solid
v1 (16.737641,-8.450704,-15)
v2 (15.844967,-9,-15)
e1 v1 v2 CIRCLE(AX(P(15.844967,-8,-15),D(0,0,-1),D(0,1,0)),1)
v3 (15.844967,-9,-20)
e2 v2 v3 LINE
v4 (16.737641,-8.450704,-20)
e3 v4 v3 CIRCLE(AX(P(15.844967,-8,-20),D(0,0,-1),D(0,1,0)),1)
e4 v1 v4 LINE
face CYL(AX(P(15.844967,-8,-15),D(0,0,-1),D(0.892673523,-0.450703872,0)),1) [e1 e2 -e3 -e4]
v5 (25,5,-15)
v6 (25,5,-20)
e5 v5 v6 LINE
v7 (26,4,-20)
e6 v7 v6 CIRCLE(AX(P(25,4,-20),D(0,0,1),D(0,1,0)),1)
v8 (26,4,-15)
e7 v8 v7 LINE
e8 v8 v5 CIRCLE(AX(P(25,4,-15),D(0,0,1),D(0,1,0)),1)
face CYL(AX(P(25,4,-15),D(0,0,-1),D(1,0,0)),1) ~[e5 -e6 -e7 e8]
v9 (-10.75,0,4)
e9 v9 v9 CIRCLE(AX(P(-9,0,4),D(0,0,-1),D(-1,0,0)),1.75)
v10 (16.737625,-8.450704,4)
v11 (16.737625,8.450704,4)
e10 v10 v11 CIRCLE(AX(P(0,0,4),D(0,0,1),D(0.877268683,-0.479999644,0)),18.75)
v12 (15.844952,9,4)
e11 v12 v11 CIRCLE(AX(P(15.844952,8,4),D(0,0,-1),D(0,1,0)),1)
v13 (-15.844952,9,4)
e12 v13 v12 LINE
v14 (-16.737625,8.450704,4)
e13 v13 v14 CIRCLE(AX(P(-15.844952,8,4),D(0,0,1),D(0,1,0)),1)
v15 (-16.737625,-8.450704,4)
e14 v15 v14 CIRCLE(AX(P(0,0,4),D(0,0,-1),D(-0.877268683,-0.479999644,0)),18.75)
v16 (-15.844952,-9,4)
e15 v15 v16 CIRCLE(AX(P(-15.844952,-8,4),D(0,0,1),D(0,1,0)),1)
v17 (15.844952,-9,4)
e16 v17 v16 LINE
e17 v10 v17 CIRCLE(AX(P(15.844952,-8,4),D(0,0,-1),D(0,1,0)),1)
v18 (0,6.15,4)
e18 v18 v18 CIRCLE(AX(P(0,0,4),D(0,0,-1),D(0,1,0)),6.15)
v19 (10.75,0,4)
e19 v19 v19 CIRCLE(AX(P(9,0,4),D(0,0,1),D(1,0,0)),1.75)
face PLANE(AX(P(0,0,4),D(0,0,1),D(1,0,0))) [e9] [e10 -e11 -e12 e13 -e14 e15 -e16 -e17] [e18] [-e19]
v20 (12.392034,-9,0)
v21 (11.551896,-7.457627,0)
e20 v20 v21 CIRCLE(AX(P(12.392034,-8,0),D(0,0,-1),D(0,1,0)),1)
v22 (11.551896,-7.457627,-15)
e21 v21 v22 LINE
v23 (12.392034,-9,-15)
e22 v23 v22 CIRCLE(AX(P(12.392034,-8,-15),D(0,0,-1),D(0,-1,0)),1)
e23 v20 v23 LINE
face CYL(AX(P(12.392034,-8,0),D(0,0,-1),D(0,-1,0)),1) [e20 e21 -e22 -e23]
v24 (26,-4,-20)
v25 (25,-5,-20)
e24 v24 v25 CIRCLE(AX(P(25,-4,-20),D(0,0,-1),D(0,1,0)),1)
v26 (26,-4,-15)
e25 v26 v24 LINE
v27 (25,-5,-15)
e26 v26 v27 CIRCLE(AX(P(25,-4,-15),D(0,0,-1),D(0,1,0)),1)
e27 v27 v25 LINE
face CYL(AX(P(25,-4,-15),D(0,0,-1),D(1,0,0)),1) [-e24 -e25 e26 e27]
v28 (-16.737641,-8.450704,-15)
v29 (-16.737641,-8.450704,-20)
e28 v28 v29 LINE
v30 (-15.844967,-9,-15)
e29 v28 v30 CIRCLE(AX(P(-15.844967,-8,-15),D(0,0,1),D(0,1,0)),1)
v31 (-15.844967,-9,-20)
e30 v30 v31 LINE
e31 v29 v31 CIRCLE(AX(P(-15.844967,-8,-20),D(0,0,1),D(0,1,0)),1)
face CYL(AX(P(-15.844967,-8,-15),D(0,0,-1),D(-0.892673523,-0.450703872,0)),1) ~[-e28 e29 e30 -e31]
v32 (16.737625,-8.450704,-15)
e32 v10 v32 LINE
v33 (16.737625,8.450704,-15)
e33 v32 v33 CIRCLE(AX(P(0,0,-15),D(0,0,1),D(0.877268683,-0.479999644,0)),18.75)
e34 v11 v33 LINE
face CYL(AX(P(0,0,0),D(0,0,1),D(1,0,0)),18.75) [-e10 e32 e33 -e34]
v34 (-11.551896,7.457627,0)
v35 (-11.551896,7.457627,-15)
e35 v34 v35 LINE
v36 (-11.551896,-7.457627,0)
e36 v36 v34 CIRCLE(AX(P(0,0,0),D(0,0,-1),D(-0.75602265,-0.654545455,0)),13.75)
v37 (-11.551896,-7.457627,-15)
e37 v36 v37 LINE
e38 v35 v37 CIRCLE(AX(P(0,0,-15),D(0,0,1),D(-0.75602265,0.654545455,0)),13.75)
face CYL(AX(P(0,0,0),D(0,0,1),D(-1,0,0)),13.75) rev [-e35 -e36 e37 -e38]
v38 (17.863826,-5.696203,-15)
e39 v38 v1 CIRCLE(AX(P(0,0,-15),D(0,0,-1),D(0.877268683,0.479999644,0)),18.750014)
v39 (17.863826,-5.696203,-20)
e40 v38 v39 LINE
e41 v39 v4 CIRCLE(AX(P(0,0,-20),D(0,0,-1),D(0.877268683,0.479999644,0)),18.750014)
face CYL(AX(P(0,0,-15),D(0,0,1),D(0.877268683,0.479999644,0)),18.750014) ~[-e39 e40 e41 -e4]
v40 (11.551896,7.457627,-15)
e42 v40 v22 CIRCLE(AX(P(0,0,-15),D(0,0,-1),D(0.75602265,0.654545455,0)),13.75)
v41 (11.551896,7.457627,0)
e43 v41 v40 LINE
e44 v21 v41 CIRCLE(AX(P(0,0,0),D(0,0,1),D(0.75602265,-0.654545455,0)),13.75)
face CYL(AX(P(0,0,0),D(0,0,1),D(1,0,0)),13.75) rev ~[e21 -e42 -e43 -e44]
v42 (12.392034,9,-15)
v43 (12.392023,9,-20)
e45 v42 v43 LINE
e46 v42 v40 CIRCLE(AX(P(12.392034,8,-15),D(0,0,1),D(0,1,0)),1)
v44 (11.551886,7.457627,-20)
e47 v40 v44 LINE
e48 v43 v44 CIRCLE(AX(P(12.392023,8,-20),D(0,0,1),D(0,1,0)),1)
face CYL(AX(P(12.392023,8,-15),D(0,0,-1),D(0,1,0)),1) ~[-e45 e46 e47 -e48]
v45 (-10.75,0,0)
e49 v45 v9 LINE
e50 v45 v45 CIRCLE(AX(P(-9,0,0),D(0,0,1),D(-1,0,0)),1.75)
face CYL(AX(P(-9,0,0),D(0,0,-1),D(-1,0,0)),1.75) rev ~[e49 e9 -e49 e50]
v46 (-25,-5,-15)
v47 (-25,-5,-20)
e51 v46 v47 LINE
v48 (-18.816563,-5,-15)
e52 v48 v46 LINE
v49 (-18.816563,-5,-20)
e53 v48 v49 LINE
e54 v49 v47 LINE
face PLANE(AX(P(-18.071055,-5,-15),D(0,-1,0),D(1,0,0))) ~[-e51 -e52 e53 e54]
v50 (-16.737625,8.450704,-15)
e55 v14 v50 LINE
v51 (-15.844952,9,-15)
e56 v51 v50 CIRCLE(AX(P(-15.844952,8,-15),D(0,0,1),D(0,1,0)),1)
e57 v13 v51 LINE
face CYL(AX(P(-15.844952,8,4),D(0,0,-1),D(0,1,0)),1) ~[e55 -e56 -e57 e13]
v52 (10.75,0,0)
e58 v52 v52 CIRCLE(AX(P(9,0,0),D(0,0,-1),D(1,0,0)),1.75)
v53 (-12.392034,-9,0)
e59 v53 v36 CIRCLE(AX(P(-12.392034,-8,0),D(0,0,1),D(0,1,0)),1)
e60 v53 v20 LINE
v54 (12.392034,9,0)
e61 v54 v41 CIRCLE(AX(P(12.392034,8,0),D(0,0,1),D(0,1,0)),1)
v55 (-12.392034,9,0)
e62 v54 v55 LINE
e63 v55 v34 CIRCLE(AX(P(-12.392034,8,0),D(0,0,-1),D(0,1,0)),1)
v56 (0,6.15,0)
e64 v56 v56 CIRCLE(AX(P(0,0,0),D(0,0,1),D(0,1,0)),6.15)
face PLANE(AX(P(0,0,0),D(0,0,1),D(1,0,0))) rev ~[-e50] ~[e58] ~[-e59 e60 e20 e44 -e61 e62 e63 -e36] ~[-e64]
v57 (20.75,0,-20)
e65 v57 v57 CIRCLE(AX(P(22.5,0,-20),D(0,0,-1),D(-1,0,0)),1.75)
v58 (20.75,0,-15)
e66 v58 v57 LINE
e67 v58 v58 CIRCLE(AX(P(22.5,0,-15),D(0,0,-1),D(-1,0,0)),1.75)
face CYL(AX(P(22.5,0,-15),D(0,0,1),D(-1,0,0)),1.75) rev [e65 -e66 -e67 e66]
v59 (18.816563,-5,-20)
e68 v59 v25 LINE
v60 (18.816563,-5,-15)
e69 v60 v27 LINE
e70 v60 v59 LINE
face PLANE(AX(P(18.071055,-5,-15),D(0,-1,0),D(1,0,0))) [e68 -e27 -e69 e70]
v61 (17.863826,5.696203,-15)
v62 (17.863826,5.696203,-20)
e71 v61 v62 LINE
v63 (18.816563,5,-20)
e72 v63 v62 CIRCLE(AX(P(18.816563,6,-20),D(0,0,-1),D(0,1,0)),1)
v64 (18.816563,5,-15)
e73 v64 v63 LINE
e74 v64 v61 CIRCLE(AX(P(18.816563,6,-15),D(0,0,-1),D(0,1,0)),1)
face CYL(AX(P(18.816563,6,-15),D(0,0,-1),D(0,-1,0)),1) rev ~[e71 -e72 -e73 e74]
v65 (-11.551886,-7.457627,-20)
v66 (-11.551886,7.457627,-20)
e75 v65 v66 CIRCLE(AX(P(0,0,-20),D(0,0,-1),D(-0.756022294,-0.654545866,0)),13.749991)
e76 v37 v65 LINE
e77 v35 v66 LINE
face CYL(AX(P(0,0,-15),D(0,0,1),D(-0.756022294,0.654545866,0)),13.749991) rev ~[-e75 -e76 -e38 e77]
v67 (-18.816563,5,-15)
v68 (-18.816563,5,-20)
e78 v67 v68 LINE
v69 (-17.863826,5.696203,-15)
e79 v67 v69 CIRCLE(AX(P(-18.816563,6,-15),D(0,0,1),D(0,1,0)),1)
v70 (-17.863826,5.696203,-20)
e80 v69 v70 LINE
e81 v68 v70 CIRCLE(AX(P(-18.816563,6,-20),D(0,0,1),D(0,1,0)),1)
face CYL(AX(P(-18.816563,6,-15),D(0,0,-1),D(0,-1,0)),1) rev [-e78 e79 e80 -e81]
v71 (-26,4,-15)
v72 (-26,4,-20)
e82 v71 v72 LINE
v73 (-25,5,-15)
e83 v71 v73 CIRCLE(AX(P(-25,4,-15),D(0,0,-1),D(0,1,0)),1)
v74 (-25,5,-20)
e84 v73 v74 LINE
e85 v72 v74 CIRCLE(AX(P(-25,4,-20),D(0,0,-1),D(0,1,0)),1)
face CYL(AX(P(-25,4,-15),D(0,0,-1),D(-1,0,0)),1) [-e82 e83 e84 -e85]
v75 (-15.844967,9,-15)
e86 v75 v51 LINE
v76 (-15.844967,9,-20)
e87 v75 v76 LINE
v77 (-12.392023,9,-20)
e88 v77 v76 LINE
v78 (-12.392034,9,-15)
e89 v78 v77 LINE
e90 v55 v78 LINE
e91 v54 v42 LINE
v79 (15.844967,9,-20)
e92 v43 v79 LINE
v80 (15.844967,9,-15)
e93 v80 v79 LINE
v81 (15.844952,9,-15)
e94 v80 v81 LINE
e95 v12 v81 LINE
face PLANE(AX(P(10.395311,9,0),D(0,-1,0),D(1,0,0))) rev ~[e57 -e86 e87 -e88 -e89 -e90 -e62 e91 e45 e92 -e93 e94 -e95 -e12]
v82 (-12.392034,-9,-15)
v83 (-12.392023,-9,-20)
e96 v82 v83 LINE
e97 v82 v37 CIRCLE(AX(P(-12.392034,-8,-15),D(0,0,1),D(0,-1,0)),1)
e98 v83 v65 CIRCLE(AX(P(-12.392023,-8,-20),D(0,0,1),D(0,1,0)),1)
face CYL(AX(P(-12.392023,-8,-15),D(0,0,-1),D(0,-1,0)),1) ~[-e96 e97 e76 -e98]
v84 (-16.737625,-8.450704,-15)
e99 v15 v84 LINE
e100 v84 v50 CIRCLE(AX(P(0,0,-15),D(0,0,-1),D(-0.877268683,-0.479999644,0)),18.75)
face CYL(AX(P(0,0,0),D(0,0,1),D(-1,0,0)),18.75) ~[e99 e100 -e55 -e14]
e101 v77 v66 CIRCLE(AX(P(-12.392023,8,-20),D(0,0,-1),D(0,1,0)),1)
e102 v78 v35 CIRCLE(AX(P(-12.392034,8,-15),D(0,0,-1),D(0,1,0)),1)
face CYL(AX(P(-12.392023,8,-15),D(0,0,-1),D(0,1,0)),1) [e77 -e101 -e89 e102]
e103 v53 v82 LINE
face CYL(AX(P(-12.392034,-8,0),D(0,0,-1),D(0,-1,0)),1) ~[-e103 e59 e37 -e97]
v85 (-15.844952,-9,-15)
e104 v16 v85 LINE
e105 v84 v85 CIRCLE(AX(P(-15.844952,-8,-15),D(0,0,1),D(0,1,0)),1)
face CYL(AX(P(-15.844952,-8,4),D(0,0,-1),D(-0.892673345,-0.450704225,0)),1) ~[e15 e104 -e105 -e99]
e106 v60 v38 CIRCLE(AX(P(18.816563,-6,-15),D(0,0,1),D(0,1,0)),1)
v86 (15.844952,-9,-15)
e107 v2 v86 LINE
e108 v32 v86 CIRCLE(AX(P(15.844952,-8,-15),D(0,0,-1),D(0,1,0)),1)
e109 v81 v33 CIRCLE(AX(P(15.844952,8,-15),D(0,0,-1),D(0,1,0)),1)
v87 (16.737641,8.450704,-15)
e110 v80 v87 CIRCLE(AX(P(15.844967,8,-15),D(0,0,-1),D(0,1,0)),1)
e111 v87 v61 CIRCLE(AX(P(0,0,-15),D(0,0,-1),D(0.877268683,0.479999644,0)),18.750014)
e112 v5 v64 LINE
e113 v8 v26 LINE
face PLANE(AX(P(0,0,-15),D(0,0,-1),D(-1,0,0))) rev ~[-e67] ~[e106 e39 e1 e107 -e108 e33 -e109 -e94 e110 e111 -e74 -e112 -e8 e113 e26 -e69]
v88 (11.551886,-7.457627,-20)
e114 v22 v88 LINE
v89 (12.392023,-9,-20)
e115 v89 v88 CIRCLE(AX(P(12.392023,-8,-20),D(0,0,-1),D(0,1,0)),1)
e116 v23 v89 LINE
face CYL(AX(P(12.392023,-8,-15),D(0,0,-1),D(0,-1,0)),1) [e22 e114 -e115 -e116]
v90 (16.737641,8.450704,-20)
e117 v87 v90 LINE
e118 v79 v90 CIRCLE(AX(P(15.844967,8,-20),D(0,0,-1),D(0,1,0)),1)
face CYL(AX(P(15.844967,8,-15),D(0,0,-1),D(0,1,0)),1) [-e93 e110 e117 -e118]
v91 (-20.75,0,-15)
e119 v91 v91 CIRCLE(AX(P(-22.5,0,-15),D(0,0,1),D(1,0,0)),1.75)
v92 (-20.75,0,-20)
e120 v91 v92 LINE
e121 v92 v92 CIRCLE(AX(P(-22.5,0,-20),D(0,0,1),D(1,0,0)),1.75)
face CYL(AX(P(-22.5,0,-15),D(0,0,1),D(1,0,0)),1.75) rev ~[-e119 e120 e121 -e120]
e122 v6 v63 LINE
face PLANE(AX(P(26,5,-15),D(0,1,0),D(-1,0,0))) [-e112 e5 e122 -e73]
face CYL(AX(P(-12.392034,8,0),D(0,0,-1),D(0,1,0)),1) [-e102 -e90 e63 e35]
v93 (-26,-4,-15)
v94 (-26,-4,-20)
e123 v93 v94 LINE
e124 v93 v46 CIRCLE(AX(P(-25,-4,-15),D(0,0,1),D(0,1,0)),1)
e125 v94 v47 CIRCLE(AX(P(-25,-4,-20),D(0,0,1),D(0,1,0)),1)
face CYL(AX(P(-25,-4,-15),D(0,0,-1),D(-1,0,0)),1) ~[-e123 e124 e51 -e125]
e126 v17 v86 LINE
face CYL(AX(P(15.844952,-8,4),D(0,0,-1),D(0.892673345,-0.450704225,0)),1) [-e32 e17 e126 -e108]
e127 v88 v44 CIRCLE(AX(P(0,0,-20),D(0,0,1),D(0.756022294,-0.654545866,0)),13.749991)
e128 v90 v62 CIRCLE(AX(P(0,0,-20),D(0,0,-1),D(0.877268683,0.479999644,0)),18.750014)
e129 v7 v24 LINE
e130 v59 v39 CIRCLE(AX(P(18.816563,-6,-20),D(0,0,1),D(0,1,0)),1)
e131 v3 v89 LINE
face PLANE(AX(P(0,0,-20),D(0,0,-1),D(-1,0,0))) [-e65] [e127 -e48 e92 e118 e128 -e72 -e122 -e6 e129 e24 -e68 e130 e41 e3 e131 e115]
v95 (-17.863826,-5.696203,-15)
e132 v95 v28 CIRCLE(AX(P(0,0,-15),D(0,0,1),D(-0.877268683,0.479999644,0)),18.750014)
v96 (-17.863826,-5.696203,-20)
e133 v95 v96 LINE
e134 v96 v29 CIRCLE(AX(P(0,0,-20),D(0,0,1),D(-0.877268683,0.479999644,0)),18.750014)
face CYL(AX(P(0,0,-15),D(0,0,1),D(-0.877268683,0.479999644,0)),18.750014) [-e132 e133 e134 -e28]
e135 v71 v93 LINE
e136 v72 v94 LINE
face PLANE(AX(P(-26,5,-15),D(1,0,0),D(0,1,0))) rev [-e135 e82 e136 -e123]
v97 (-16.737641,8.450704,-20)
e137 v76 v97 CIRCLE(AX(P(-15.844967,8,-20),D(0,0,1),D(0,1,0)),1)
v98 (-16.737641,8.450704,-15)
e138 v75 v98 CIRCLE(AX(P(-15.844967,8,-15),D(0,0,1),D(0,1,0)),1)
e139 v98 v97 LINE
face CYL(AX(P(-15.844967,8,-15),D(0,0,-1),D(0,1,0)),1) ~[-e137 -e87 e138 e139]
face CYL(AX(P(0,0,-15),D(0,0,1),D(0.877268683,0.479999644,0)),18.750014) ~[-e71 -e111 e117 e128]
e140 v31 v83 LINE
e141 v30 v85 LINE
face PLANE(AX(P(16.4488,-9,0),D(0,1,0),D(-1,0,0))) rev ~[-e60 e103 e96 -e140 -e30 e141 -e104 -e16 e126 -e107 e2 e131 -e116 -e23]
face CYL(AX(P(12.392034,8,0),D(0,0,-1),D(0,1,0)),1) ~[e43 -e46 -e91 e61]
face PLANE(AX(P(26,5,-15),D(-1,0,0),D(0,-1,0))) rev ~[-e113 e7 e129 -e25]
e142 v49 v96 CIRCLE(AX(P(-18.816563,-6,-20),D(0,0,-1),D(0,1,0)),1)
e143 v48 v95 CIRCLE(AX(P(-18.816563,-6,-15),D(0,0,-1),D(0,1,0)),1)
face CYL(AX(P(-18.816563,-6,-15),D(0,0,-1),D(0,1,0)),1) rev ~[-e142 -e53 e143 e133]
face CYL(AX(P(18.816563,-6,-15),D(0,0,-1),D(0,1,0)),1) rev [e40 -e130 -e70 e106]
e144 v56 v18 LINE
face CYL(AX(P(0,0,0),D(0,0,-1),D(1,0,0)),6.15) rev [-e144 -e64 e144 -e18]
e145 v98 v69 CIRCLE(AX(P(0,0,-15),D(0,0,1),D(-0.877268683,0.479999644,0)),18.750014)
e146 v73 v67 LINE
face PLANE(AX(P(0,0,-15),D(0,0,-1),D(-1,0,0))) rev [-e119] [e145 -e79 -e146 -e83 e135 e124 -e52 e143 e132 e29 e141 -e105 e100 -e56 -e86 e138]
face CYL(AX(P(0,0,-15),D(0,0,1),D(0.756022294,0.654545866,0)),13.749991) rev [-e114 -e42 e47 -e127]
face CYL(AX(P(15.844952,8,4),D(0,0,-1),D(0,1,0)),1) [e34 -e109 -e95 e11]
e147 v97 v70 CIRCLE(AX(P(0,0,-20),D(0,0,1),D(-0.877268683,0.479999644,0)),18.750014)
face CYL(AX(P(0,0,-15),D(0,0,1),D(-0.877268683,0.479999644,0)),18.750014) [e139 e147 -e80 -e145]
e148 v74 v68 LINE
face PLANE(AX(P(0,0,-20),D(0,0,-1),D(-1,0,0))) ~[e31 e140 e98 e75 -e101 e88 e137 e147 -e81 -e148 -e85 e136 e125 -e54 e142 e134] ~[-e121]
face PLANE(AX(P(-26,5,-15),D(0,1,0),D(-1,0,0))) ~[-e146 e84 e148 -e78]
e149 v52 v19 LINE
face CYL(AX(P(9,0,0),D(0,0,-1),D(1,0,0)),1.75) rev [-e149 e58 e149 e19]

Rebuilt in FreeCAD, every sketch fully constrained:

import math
import FreeCAD as App
import Part
import Sketcher

V = App.Vector
Q = App.Units.Quantity


def edges_at(feature, points):
    """Names of the edges that pass closest to the given points."""
    edges = feature.Shape.Edges
    near = lambda p: min(range(len(edges)), key=lambda i: edges[i].distToShape(Part.Vertex(*p))[0])
    return sorted({f"Edge{near(p) + 1}" for p in points})

doc = App.newDocument("Part")
body = doc.addObject("PartDesign::Body", "Body")

# Sketch on XY plane
sketch1 = doc.addObject("Sketcher::SketchObject", "Sketch")
body.addObject(sketch1)
sketch1.AttachmentSupport = (doc.XY_Plane, [""])
sketch1.MapMode = "FlatFace"
sketch1.addGeometry([
    Part.LineSegment(V(0, -9, 0), V(16.4, -9, 0)),  # 0
    Part.ArcOfCircle(Part.Circle(V(0, 0, 0), V(0, 0, 1), 18.8), math.radians(-29), math.radians(29)),  # 1
    Part.LineSegment(V(16.4, 9, 0), V(0, 9, 0)),  # 2
    Part.LineSegment(V(0, 9, 0), V(0, 6.2, 0)),  # 3
    Part.ArcOfCircle(Part.Circle(V(0, 0, 0), V(0, 0, 1), 6.2), math.radians(-90), math.radians(90)),  # 4
    Part.LineSegment(V(0, -6.2, 0), V(0, -9, 0)),  # 5
    Part.Circle(V(9, 0, 0), V(0, 0, 1), 1.8),  # 6
], False)
sketch1.addConstraint([
    Sketcher.Constraint("Coincident", 0, 2, 1, 1),
    Sketcher.Constraint("Coincident", 1, 2, 2, 1),
    Sketcher.Constraint("Coincident", 2, 2, 3, 1),
    Sketcher.Constraint("Coincident", 3, 2, 4, 2),
    Sketcher.Constraint("Coincident", 4, 1, 5, 1),
    Sketcher.Constraint("Coincident", 5, 2, 0, 1),
    Sketcher.Constraint("Horizontal", 0),
    Sketcher.Constraint("Horizontal", 2),
    Sketcher.Constraint("Vertical", 3),
    Sketcher.Constraint("Vertical", 5),
    Sketcher.Constraint("Coincident", 1, 3, -1, 1),
    Sketcher.Constraint("Coincident", 4, 3, -1, 1),
    Sketcher.Constraint("Symmetric", 2, 2, 5, 2, -1, 1),
    Sketcher.Constraint("PointOnObject", 6, 3, -1),
    Sketcher.Constraint("PointOnObject", 2, 2, -2),
    Sketcher.Constraint("Diameter", 6, Q("3.5 mm")),
    Sketcher.Constraint("Radius", 4, Q("6.15 mm")),
    Sketcher.Constraint("DistanceX", -1, 1, 6, 3, Q("9 mm")),
    Sketcher.Constraint("DistanceY", 0, 2, -1, 1, Q("9 mm")),
    Sketcher.Constraint("Radius", 1, Q("18.75 mm")),
])
pad1 = doc.addObject("PartDesign::Pad", "Pad")
body.addObject(pad1)
pad1.Profile = sketch1
pad1.Length = 4

# Sketch on XY plane
sketch2 = doc.addObject("Sketcher::SketchObject", "Sketch001")
body.addObject(sketch2)
sketch2.AttachmentSupport = (doc.XY_Plane, [""])
sketch2.MapMode = "FlatFace"
sketch2.addGeometry([
    Part.LineSegment(V(16, 9, 0), V(10, 9, 0)),
    Part.ArcOfCircle(Part.Circle(V(0, 0, 0), V(0, 0, 1), 14), math.radians(-41), math.radians(41)),
    Part.LineSegment(V(10, -9, 0), V(16, -9, 0)),
    Part.ArcOfCircle(Part.Circle(V(0, 0, 0), V(0, 0, 1), 19), math.radians(-29), math.radians(29)),
], False)
sketch2.addConstraint([
    Sketcher.Constraint("Coincident", 0, 2, 1, 2),
    Sketcher.Constraint("Coincident", 1, 1, 2, 1),
    Sketcher.Constraint("Coincident", 2, 2, 3, 1),
    Sketcher.Constraint("Coincident", 3, 2, 0, 1),
    Sketcher.Constraint("Horizontal", 0),
    Sketcher.Constraint("Horizontal", 2),
    Sketcher.Constraint("Coincident", 1, 3, -1, 1),
    Sketcher.Constraint("Coincident", 3, 3, -1, 1),
    Sketcher.Constraint("Vertical", 0, 2, 1, 1),
    Sketcher.Constraint("DistanceY", -1, 1, 0, 2, Q("9 mm")),
    Sketcher.Constraint("Radius", 1, Q("13.75 mm")),
    Sketcher.Constraint("Radius", 3, Q("18.75 mm")),
])
pad2 = doc.addObject("PartDesign::Pad", "Pad001")
body.addObject(pad2)
pad2.Profile = sketch2
pad2.Length = 15
pad2.Reversed = True

# Sketch on XY plane
sketch3 = doc.addObject("Sketcher::SketchObject", "Sketch002")
body.addObject(sketch3)
sketch3.AttachmentSupport = (doc.XY_Plane, [""])
sketch3.MapMode = "FlatFace"
sketch3.AttachmentOffset = App.Placement(V(0, 0, -15), App.Rotation())
sketch3.addGeometry([
    Part.ArcOfCircle(Part.Circle(V(0, 0, 0), V(0, 0, 1), 18.8), math.radians(-28.69), math.radians(-15.47)),  # 0
    Part.LineSegment(V(16.4, -9, 0), V(10.4, -9, 0)),  # 1
    Part.ArcOfCircle(Part.Circle(V(0, 0, 0), V(0, 0, 1), 13.7), math.radians(-41), math.radians(41)),  # 2
    Part.LineSegment(V(10.4, 9, 0), V(16.4, 9, 0)),  # 3
    Part.ArcOfCircle(Part.Circle(V(0, 0, 0), V(0, 0, 1), 18.8), math.radians(15.47), math.radians(28.69)),  # 4
    Part.LineSegment(V(18.1, 5, 0), V(26, 5, 0)),  # 5
    Part.LineSegment(V(26, 5, 0), V(26, -5, 0)),  # 6
    Part.LineSegment(V(26, -5, 0), V(18.1, -5, 0)),  # 7
    Part.Circle(V(22.5, 0, 0), V(0, 0, 1), 1.8),  # 8
], False)
sketch3.addConstraint([
    Sketcher.Constraint("Coincident", 0, 1, 1, 1),
    Sketcher.Constraint("Coincident", 1, 2, 2, 1),
    Sketcher.Constraint("Coincident", 2, 2, 3, 1),
    Sketcher.Constraint("Coincident", 3, 2, 4, 2),
    Sketcher.Constraint("Coincident", 4, 1, 5, 1),
    Sketcher.Constraint("Coincident", 5, 2, 6, 1),
    Sketcher.Constraint("Coincident", 6, 2, 7, 1),
    Sketcher.Constraint("Coincident", 7, 2, 0, 2),
    Sketcher.Constraint("Horizontal", 1),
    Sketcher.Constraint("Horizontal", 3),
    Sketcher.Constraint("Horizontal", 5),
    Sketcher.Constraint("Vertical", 6),
    Sketcher.Constraint("Horizontal", 7),
    Sketcher.Constraint("Coincident", 0, 3, -1, 1),
    Sketcher.Constraint("Coincident", 2, 3, -1, 1),
    Sketcher.Constraint("Coincident", 4, 3, -1, 1),
    Sketcher.Constraint("Equal", 0, 4),
    Sketcher.Constraint("PointOnObject", 8, 3, -1),
    Sketcher.Constraint("Vertical", 1, 2, 2, 2),
    Sketcher.Constraint("Vertical", 4, 1, 7, 2),
    Sketcher.Constraint("Diameter", 8, Q("3.5 mm")),
    Sketcher.Constraint("DistanceY", 6, 2, 6, 1, Q("10 mm")),
    Sketcher.Constraint("DistanceX", -1, 1, 8, 3, Q("22.5 mm")),
    Sketcher.Constraint("DistanceX", 8, 3, 5, 2, Q("3.5 mm")),
    Sketcher.Constraint("Radius", 0, Q("18.75 mm")),
    Sketcher.Constraint("Radius", 2, Q("13.75 mm")),
    Sketcher.Constraint("DistanceY", 0, 1, -1, 1, Q("9 mm")),
])
pad3 = doc.addObject("PartDesign::Pad", "Pad002")
body.addObject(pad3)
pad3.Profile = sketch3
pad3.Length = 5
pad3.Reversed = True
doc.recompute()

fillet = doc.addObject("PartDesign::Fillet", "Fillet")
body.addObject(fillet)
fillet.Base = (pad3, edges_at(pad3, [
    (10.395, 9, -10),
    (10.395, -9, -10),
    (16.449, 9, -5.5),
    (16.449, 9, -17.5),
    (16.449, -9, -17.5),
    (16.449, -9, -5.5),
    (26, 5, -17.5),
    (26, -5, -17.5),
    (18.071, 5, -17.5),
    (18.071, -5, -17.5),
]))
fillet.Radius = 1
doc.recompute()

mirrored = doc.addObject("PartDesign::Mirrored", "Mirrored")
body.addObject(mirrored)
mirrored.TransformMode = "Transform body"
mirrored.MirrorPlane = (doc.YZ_Plane, [""])
body.Tip = mirrored

doc.recompute()
